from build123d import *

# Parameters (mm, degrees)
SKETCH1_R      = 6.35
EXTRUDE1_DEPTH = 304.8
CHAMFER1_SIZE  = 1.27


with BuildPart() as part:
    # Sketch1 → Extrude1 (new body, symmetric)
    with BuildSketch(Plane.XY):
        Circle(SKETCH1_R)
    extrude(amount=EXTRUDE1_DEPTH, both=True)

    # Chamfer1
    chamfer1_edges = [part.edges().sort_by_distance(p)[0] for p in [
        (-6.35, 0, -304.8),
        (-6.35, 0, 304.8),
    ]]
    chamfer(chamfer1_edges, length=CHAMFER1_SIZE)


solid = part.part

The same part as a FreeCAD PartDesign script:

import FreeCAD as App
import Part
import Sketcher
from FreeCAD import Vector
Q = App.Units.Quantity


def edges_at(feature, points):
    """Names of the edges that pass closest to the given points."""
    edges = feature.Shape.Edges
    near = lambda p: min(range(len(edges)), key=lambda i: edges[i].distToShape(Part.Vertex(*p))[0])
    return sorted({f"Edge{near(p) + 1}" for p in points})

doc = App.newDocument("Part")
params = doc.addObject("Spreadsheet::Sheet", "Params")
for row, (alias, value) in enumerate([
    ("sketch1_diameter", "0.5 in"),
    ("pad1_length", "24 in"),
    ("chamfer_size", "0.05 in"),
], start=1):
    params.set(f"A{row}", alias)
    params.set(f"B{row}", "=" + value)
    params.setAlias(f"B{row}", alias)

body = doc.addObject("PartDesign::Body", "Body")

# Sketch on XY plane
sketch1 = body.newObject("Sketcher::SketchObject", "Sketch")
sketch1.AttachmentSupport = (doc.getObject("XY_Plane"), [""])
sketch1.MapMode = "FlatFace"
sketch1.addGeometry(Part.Circle(Vector(0, 0, 0), Vector(0, 0, 1), 6), False)
sketch1.addConstraint(Sketcher.Constraint("Coincident", 0, 3, -1, 1))
sketch1.addConstraint(Sketcher.Constraint("Diameter", 0, Q("0.5 in")))
sketch1.setExpression("Constraints[1]", "Params.sketch1_diameter")
pad1 = body.newObject("PartDesign::Pad", "Pad")
pad1.Profile = sketch1
pad1.setExpression("Length", "Params.pad1_length")
pad1.Midplane = True
doc.recompute()

chamfer = body.newObject("PartDesign::Chamfer", "Chamfer")
chamfer.Base = (pad1, edges_at(pad1, [(-6.35, 0, -304.8), (-6.35, 0, 304.8)]))
chamfer.setExpression("Size", "Params.chamfer_size")

doc.recompute()
